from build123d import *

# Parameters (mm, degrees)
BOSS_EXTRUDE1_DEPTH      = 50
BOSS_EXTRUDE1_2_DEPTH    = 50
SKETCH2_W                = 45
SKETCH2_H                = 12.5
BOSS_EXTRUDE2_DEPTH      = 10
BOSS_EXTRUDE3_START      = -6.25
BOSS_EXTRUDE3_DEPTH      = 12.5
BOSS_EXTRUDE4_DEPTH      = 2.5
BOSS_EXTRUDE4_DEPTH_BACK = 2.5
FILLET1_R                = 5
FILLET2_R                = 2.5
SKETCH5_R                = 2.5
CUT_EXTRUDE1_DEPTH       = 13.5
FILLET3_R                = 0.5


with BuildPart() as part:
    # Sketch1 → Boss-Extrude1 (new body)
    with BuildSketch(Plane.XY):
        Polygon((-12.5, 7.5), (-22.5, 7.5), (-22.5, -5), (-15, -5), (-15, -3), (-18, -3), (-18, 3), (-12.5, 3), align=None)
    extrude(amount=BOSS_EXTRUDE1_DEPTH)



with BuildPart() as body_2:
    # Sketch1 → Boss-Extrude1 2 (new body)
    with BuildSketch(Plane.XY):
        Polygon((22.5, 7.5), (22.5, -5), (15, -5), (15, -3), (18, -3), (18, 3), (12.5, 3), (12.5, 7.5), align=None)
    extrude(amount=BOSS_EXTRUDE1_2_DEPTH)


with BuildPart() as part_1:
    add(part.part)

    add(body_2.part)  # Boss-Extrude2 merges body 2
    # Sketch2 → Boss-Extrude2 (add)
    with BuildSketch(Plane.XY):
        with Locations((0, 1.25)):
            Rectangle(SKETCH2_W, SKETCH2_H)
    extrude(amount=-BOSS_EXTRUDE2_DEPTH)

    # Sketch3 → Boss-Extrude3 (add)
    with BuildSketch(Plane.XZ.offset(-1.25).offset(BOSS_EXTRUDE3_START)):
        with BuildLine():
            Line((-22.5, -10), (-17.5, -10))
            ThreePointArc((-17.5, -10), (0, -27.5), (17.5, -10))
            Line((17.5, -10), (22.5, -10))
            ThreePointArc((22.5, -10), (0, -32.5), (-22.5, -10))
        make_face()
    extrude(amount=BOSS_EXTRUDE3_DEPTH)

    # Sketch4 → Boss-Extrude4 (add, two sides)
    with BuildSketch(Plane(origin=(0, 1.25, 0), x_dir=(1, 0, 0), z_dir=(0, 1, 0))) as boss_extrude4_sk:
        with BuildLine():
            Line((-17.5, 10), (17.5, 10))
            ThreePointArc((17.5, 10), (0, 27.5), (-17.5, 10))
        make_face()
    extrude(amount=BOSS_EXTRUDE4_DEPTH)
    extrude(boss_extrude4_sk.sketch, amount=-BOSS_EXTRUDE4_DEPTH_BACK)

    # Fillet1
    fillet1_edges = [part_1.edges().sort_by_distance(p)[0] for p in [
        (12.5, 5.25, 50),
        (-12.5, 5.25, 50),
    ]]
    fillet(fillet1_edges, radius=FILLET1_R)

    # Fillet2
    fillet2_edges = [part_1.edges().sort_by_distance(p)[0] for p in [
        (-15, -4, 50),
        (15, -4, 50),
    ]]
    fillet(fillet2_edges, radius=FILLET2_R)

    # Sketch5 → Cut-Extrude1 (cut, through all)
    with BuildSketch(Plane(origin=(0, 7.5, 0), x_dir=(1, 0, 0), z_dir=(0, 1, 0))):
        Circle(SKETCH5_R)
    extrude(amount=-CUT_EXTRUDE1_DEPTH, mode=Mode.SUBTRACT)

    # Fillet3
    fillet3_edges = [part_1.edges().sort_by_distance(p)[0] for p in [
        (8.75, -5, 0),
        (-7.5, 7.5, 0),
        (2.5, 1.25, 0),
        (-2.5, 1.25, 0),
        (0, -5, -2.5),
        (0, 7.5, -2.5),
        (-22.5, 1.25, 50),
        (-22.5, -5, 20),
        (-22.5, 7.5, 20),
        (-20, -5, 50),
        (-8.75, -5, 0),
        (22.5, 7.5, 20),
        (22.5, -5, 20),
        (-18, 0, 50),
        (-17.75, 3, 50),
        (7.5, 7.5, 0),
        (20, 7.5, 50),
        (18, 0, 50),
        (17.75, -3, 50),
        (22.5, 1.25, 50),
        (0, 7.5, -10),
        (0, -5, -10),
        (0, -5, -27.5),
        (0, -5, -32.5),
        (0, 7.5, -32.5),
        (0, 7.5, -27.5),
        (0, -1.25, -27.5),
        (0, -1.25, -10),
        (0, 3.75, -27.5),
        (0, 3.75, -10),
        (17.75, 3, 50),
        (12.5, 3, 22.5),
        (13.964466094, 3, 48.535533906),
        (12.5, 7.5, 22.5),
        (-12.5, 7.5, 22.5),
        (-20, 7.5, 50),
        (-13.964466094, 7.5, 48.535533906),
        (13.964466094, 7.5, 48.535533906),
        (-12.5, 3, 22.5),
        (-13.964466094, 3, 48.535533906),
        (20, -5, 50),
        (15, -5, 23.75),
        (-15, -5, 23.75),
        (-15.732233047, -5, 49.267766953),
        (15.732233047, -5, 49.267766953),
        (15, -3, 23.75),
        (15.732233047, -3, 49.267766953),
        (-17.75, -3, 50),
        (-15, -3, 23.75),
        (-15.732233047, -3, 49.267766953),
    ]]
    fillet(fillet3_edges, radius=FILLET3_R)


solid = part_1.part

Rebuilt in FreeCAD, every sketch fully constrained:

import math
import FreeCAD as App
import Part
import Sketcher

V = App.Vector
Q = App.Units.Quantity


def edges_at(feature, points):
    """Names of the edges that pass closest to the given points."""
    edges = feature.Shape.Edges
    near = lambda p: min(range(len(edges)), key=lambda i: edges[i].distToShape(Part.Vertex(*p))[0])
    return sorted({f"Edge{near(p) + 1}" for p in points})

doc = App.newDocument("Part")
body = doc.addObject("PartDesign::Body", "Body")

# Sketch on XY plane
sketch1 = body.newObject("Sketcher::SketchObject", "Sketch")
sketch1.AttachmentSupport = (doc.getObject("XY_Plane"), [""])
sketch1.MapMode = "FlatFace"
sketch1.addGeometry(Part.LineSegment(V(-12.5, 7.5, 0), V(-22.5, 7.5, 0)), False)
sketch1.addGeometry(Part.LineSegment(V(-22.5, 7.5, 0), V(-22.5, -5, 0)), False)
sketch1.addGeometry(Part.LineSegment(V(-22.5, -5, 0), V(-15, -5, 0)), False)
sketch1.addGeometry(Part.LineSegment(V(-15, -5, 0), V(-15, -3, 0)), False)
sketch1.addGeometry(Part.LineSegment(V(-15, -3, 0), V(-18, -3, 0)), False)
sketch1.addGeometry(Part.LineSegment(V(-18, -3, 0), V(-18, 3, 0)), False)
sketch1.addGeometry(Part.LineSegment(V(-18, 3, 0), V(-12.5, 3, 0)), False)
sketch1.addGeometry(Part.LineSegment(V(-12.5, 3, 0), V(-12.5, 7.5, 0)), False)
sketch1.addConstraint(Sketcher.Constraint("Coincident", 0, 2, 1, 1))
sketch1.addConstraint(Sketcher.Constraint("Coincident", 1, 2, 2, 1))
sketch1.addConstraint(Sketcher.Constraint("Coincident", 2, 2, 3, 1))
sketch1.addConstraint(Sketcher.Constraint("Coincident", 3, 2, 4, 1))
sketch1.addConstraint(Sketcher.Constraint("Coincident", 4, 2, 5, 1))
sketch1.addConstraint(Sketcher.Constraint("Coincident", 5, 2, 6, 1))
sketch1.addConstraint(Sketcher.Constraint("Coincident", 6, 2, 7, 1))
sketch1.addConstraint(Sketcher.Constraint("Coincident", 7, 2, 0, 1))
sketch1.addConstraint(Sketcher.Constraint("Horizontal", 0))
sketch1.addConstraint(Sketcher.Constraint("Vertical", 1))
sketch1.addConstraint(Sketcher.Constraint("Horizontal", 2))
sketch1.addConstraint(Sketcher.Constraint("Vertical", 3))
sketch1.addConstraint(Sketcher.Constraint("Horizontal", 4))
sketch1.addConstraint(Sketcher.Constraint("Vertical", 5))
sketch1.addConstraint(Sketcher.Constraint("Horizontal", 6))
sketch1.addConstraint(Sketcher.Constraint("Vertical", 7))
sketch1.addConstraint(Sketcher.Constraint("DistanceX", 0, 2, 0, 1, Q("10 mm")))
sketch1.addConstraint(Sketcher.Constraint("DistanceX", 4, 2, 4, 1, Q("3 mm")))
sketch1.addConstraint(Sketcher.Constraint("DistanceY", 3, 1, 3, 2, Q("2 mm")))
sketch1.addConstraint(Sketcher.Constraint("DistanceY", 5, 1, 5, 2, Q("6 mm")))
sketch1.addConstraint(Sketcher.Constraint("DistanceX", 2, 1, 2, 2, Q("7.5 mm")))
sketch1.addConstraint(Sketcher.Constraint("DistanceY", 1, 2, 1, 1, Q("12.5 mm")))
sketch1.addConstraint(Sketcher.Constraint("DistanceY", 1, 2, -1, 1, Q("5 mm")))
sketch1.addConstraint(Sketcher.Constraint("DistanceX", 2, 2, -1, 1, Q("15 mm")))
pad1 = body.newObject("PartDesign::Pad", "Pad")
pad1.Profile = sketch1
pad1.Length = 50
body2 = doc.addObject("PartDesign::Body", "Body001")

# Sketch on XY plane
sketch2 = body2.newObject("Sketcher::SketchObject", "Sketch001")
sketch2.AttachmentSupport = (doc.getObject("XY_Plane001"), [""])
sketch2.MapMode = "FlatFace"
sketch2.addGeometry(Part.LineSegment(V(22.5, -5, 0), V(22.5, 7.5, 0)), False)
sketch2.addGeometry(Part.LineSegment(V(22.5, 7.5, 0), V(12.5, 7.5, 0)), False)
sketch2.addGeometry(Part.LineSegment(V(12.5, 7.5, 0), V(12.5, 3, 0)), False)
sketch2.addGeometry(Part.LineSegment(V(12.5, 3, 0), V(18, 3, 0)), False)
sketch2.addGeometry(Part.LineSegment(V(18, 3, 0), V(18, -3, 0)), False)
sketch2.addGeometry(Part.LineSegment(V(18, -3, 0), V(15, -3, 0)), False)
sketch2.addGeometry(Part.LineSegment(V(15, -3, 0), V(15, -5, 0)), False)
sketch2.addGeometry(Part.LineSegment(V(15, -5, 0), V(22.5, -5, 0)), False)
sketch2.addConstraint(Sketcher.Constraint("Coincident", 0, 2, 1, 1))
sketch2.addConstraint(Sketcher.Constraint("Coincident", 1, 2, 2, 1))
sketch2.addConstraint(Sketcher.Constraint("Coincident", 2, 2, 3, 1))
sketch2.addConstraint(Sketcher.Constraint("Coincident", 3, 2, 4, 1))
sketch2.addConstraint(Sketcher.Constraint("Coincident", 4, 2, 5, 1))
sketch2.addConstraint(Sketcher.Constraint("Coincident", 5, 2, 6, 1))
sketch2.addConstraint(Sketcher.Constraint("Coincident", 6, 2, 7, 1))
sketch2.addConstraint(Sketcher.Constraint("Coincident", 7, 2, 0, 1))
sketch2.addConstraint(Sketcher.Constraint("Vertical", 0))
sketch2.addConstraint(Sketcher.Constraint("Horizontal", 1))
sketch2.addConstraint(Sketcher.Constraint("Vertical", 2))
sketch2.addConstraint(Sketcher.Constraint("Horizontal", 3))
sketch2.addConstraint(Sketcher.Constraint("Vertical", 4))
sketch2.addConstraint(Sketcher.Constraint("Horizontal", 5))
sketch2.addConstraint(Sketcher.Constraint("Vertical", 6))
sketch2.addConstraint(Sketcher.Constraint("Horizontal", 7))
sketch2.addConstraint(Sketcher.Constraint("DistanceX", 1, 2, 1, 1, Q("10 mm")))
sketch2.addConstraint(Sketcher.Constraint("DistanceX", 5, 2, 5, 1, Q("3 mm")))
sketch2.addConstraint(Sketcher.Constraint("DistanceY", 4, 2, 4, 1, Q("6 mm")))
sketch2.addConstraint(Sketcher.Constraint("DistanceY", 6, 2, 6, 1, Q("2 mm")))
sketch2.addConstraint(Sketcher.Constraint("DistanceX", 3, 1, 3, 2, Q("5.5 mm")))
sketch2.addConstraint(Sketcher.Constraint("DistanceY", 0, 1, 0, 2, Q("12.5 mm")))
sketch2.addConstraint(Sketcher.Constraint("DistanceY", -1, 1, 2, 2, Q("3 mm")))
sketch2.addConstraint(Sketcher.Constraint("DistanceX", -1, 1, 3, 2, Q("18 mm")))
pad2 = body2.newObject("PartDesign::Pad", "Pad001")
pad2.Profile = sketch2
pad2.Length = 50
body.AllowCompound = True
doc.recompute()

boolean = body.newObject("PartDesign::Boolean", "Boolean")
boolean.Type = "Fuse"
boolean.addObjects([body2])

# Sketch on XY plane
sketch3 = body.newObject("Sketcher::SketchObject", "Sketch002")
sketch3.AttachmentSupport = (doc.getObject("XY_Plane"), [""])
sketch3.MapMode = "FlatFace"
sketch3.addGeometry(Part.LineSegment(V(-22.5, 7.5, 0), V(-22.5, -5, 0)), False)
sketch3.addGeometry(Part.LineSegment(V(-22.5, -5, 0), V(22.5, -5, 0)), False)
sketch3.addGeometry(Part.LineSegment(V(22.5, -5, 0), V(22.5, 7.5, 0)), False)
sketch3.addGeometry(Part.LineSegment(V(22.5, 7.5, 0), V(-22.5, 7.5, 0)), False)
sketch3.addConstraint(Sketcher.Constraint("Coincident", 0, 2, 1, 1))
sketch3.addConstraint(Sketcher.Constraint("Coincident", 1, 2, 2, 1))
sketch3.addConstraint(Sketcher.Constraint("Coincident", 2, 2, 3, 1))
sketch3.addConstraint(Sketcher.Constraint("Coincident", 3, 2, 0, 1))
sketch3.addConstraint(Sketcher.Constraint("Vertical", 0))
sketch3.addConstraint(Sketcher.Constraint("Horizontal", 1))
sketch3.addConstraint(Sketcher.Constraint("Vertical", 2))
sketch3.addConstraint(Sketcher.Constraint("Horizontal", 3))
sketch3.addConstraint(Sketcher.Constraint("DistanceX", 1, 1, 1, 2, Q("45 mm")))
sketch3.addConstraint(Sketcher.Constraint("DistanceY", 0, 2, 0, 1, Q("12.5 mm")))
sketch3.addConstraint(Sketcher.Constraint("DistanceY", 0, 2, -1, 1, Q("5 mm")))
sketch3.addConstraint(Sketcher.Constraint("DistanceX", 0, 2, -1, 1, Q("22.5 mm")))
pad3 = body.newObject("PartDesign::Pad", "Pad002")
pad3.Profile = sketch3
pad3.Length = 10
pad3.Reversed = True

# Sketch on XZ plane
sketch4 = body.newObject("Sketcher::SketchObject", "Sketch003")
sketch4.AttachmentSupport = (doc.getObject("XZ_Plane"), [""])
sketch4.MapMode = "FlatFace"
sketch4.AttachmentOffset = App.Placement(V(0, 0, -7.5), App.Rotation())
sketch4.addGeometry(Part.LineSegment(V(-17.5, -10, 0), V(-22.5, -10, 0)), False)
sketch4.addGeometry(Part.ArcOfCircle(Part.Circle(V(0, -10, 0), V(0, 0, 1), 22.5), math.radians(180), math.radians(360)), False)
sketch4.addGeometry(Part.LineSegment(V(22.5, -10, 0), V(17.5, -10, 0)), False)
sketch4.addGeometry(Part.ArcOfCircle(Part.Circle(V(0, -10, 0), V(0, 0, 1), 17.5), math.radians(180), math.radians(360)), False)
sketch4.addConstraint(Sketcher.Constraint("Coincident", 0, 2, 1, 1))
sketch4.addConstraint(Sketcher.Constraint("Coincident", 1, 2, 2, 1))
sketch4.addConstraint(Sketcher.Constraint("Coincident", 2, 2, 3, 2))
sketch4.addConstraint(Sketcher.Constraint("Coincident", 3, 1, 0, 1))
sketch4.addConstraint(Sketcher.Constraint("Horizontal", 0))
sketch4.addConstraint(Sketcher.Constraint("Horizontal", 2))
sketch4.addConstraint(Sketcher.Constraint("Coincident", 3, 3, 1, 3))
sketch4.addConstraint(Sketcher.Constraint("Symmetric", 0, 2, 1, 2, -2))
sketch4.addConstraint(Sketcher.Constraint("Horizontal", 3, 3, 0, 2))
sketch4.addConstraint(Sketcher.Constraint("Radius", 1, Q("22.5 mm")))
sketch4.addConstraint(Sketcher.Constraint("Radius", 3, Q("17.5 mm")))
sketch4.addConstraint(Sketcher.Constraint("DistanceY", 1, 3, -1, 1, Q("10 mm")))
pad4 = body.newObject("PartDesign::Pad", "Pad003")
pad4.Profile = sketch4
pad4.Length = 12.5

# Sketch on XZ plane
sketch5 = body.newObject("Sketcher::SketchObject", "Sketch004")
sketch5.AttachmentSupport = (doc.getObject("XZ_Plane"), [""])
sketch5.MapMode = "FlatFace"
sketch5.AttachmentOffset = App.Placement(V(0, 0, -1.25), App.Rotation())
sketch5.addGeometry(Part.LineSegment(V(-17.5, -10, 0), V(17.5, -10, 0)), False)
sketch5.addGeometry(Part.ArcOfCircle(Part.Circle(V(0, -10, 0), V(0, 0, 1), 17.5), math.radians(180), math.radians(360)), False)
sketch5.addConstraint(Sketcher.Constraint("Coincident", 0, 1, 1, 1))
sketch5.addConstraint(Sketcher.Constraint("Coincident", 1, 2, 0, 2))
sketch5.addConstraint(Sketcher.Constraint("Horizontal", 0))
sketch5.addConstraint(Sketcher.Constraint("PointOnObject", 1, 3, -2))
sketch5.addConstraint(Sketcher.Constraint("Horizontal", 1, 3, 0, 1))
sketch5.addConstraint(Sketcher.Constraint("Radius", 1, Q("17.5 mm")))
sketch5.addConstraint(Sketcher.Constraint("DistanceY", 1, 3, -1, 1, Q("10 mm")))
pad5 = body.newObject("PartDesign::Pad", "Pad004")
pad5.Profile = sketch5
pad5.Type = "TwoLengths"
pad5.Length = 2.5
pad5.Length2 = 2.5
pad5.Reversed = True
doc.recompute()

fillet = body.newObject("PartDesign::Fillet", "Fillet")
fillet.Base = (pad5, edges_at(pad5, [(12.5, 5.25, 50), (-12.5, 5.25, 50)]))
fillet.Radius = 5
doc.recompute()

fillet2 = body.newObject("PartDesign::Fillet", "Fillet001")
fillet2.Base = (fillet, edges_at(fillet, [(-15, -4, 50), (15, -4, 50)]))
fillet2.Radius = 2.5

# Sketch on XZ plane
sketch6 = body.newObject("Sketcher::SketchObject", "Sketch005")
sketch6.AttachmentSupport = (doc.getObject("XZ_Plane"), [""])
sketch6.MapMode = "FlatFace"
sketch6.AttachmentOffset = App.Placement(V(0, 0, -7.5), App.Rotation())
sketch6.addGeometry(Part.Circle(V(0, 0, 0), V(0, 0, 1), 2.5), False)
sketch6.addConstraint(Sketcher.Constraint("Coincident", 0, 3, -1, 1))
sketch6.addConstraint(Sketcher.Constraint("Diameter", 0, Q("5 mm")))
pocket1 = body.newObject("PartDesign::Pocket", "Pocket")
pocket1.Profile = sketch6
pocket1.Type = "ThroughAll"
pocket1.Reversed = True
doc.recompute()

fillet3 = body.newObject("PartDesign::Fillet", "Fillet002")
fillet3.Base = (pocket1, edges_at(pocket1, [
    (8.75, -5, 0),
    (-7.5, 7.5, 0),
    (2.5, 1.25, 0),
    (-2.5, 1.25, 0),
    (0, -5, -2.5),
    (0, 7.5, -2.5),
    (-22.5, 1.25, 50),
    (-22.5, -5, 20),
    (-22.5, 7.5, 20),
    (-20, -5, 50),
    (-8.75, -5, 0),
    (22.5, 7.5, 20),
    (22.5, -5, 20),
    (-18, 0, 50),
    (-17.75, 3, 50),
    (7.5, 7.5, 0),
    (20, 7.5, 50),
    (18, 0, 50),
    (17.75, -3, 50),
    (22.5, 1.25, 50),
    (0, 7.5, -10),
    (0, -5, -10),
    (0, -5, -27.5),
    (0, -5, -32.5),
    (0, 7.5, -32.5),
    (0, 7.5, -27.5),
    (0, -1.25, -27.5),
    (0, -1.25, -10),
    (0, 3.75, -27.5),
    (0, 3.75, -10),
    (17.75, 3, 50),
    (12.5, 3, 22.5),
    (13.964, 3, 48.536),
    (12.5, 7.5, 22.5),
    (-12.5, 7.5, 22.5),
    (-20, 7.5, 50),
    (-13.964, 7.5, 48.536),
    (13.964, 7.5, 48.536),
    (-12.5, 3, 22.5),
    (-13.964, 3, 48.536),
    (20, -5, 50),
    (15, -5, 23.75),
    (-15, -5, 23.75),
    (-15.732, -5, 49.268),
    (15.732, -5, 49.268),
    (15, -3, 23.75),
    (15.732, -3, 49.268),
    (-17.75, -3, 50),
    (-15, -3, 23.75),
    (-15.732, -3, 49.268),
]))
fillet3.Radius = 0.5

doc.recompute()
